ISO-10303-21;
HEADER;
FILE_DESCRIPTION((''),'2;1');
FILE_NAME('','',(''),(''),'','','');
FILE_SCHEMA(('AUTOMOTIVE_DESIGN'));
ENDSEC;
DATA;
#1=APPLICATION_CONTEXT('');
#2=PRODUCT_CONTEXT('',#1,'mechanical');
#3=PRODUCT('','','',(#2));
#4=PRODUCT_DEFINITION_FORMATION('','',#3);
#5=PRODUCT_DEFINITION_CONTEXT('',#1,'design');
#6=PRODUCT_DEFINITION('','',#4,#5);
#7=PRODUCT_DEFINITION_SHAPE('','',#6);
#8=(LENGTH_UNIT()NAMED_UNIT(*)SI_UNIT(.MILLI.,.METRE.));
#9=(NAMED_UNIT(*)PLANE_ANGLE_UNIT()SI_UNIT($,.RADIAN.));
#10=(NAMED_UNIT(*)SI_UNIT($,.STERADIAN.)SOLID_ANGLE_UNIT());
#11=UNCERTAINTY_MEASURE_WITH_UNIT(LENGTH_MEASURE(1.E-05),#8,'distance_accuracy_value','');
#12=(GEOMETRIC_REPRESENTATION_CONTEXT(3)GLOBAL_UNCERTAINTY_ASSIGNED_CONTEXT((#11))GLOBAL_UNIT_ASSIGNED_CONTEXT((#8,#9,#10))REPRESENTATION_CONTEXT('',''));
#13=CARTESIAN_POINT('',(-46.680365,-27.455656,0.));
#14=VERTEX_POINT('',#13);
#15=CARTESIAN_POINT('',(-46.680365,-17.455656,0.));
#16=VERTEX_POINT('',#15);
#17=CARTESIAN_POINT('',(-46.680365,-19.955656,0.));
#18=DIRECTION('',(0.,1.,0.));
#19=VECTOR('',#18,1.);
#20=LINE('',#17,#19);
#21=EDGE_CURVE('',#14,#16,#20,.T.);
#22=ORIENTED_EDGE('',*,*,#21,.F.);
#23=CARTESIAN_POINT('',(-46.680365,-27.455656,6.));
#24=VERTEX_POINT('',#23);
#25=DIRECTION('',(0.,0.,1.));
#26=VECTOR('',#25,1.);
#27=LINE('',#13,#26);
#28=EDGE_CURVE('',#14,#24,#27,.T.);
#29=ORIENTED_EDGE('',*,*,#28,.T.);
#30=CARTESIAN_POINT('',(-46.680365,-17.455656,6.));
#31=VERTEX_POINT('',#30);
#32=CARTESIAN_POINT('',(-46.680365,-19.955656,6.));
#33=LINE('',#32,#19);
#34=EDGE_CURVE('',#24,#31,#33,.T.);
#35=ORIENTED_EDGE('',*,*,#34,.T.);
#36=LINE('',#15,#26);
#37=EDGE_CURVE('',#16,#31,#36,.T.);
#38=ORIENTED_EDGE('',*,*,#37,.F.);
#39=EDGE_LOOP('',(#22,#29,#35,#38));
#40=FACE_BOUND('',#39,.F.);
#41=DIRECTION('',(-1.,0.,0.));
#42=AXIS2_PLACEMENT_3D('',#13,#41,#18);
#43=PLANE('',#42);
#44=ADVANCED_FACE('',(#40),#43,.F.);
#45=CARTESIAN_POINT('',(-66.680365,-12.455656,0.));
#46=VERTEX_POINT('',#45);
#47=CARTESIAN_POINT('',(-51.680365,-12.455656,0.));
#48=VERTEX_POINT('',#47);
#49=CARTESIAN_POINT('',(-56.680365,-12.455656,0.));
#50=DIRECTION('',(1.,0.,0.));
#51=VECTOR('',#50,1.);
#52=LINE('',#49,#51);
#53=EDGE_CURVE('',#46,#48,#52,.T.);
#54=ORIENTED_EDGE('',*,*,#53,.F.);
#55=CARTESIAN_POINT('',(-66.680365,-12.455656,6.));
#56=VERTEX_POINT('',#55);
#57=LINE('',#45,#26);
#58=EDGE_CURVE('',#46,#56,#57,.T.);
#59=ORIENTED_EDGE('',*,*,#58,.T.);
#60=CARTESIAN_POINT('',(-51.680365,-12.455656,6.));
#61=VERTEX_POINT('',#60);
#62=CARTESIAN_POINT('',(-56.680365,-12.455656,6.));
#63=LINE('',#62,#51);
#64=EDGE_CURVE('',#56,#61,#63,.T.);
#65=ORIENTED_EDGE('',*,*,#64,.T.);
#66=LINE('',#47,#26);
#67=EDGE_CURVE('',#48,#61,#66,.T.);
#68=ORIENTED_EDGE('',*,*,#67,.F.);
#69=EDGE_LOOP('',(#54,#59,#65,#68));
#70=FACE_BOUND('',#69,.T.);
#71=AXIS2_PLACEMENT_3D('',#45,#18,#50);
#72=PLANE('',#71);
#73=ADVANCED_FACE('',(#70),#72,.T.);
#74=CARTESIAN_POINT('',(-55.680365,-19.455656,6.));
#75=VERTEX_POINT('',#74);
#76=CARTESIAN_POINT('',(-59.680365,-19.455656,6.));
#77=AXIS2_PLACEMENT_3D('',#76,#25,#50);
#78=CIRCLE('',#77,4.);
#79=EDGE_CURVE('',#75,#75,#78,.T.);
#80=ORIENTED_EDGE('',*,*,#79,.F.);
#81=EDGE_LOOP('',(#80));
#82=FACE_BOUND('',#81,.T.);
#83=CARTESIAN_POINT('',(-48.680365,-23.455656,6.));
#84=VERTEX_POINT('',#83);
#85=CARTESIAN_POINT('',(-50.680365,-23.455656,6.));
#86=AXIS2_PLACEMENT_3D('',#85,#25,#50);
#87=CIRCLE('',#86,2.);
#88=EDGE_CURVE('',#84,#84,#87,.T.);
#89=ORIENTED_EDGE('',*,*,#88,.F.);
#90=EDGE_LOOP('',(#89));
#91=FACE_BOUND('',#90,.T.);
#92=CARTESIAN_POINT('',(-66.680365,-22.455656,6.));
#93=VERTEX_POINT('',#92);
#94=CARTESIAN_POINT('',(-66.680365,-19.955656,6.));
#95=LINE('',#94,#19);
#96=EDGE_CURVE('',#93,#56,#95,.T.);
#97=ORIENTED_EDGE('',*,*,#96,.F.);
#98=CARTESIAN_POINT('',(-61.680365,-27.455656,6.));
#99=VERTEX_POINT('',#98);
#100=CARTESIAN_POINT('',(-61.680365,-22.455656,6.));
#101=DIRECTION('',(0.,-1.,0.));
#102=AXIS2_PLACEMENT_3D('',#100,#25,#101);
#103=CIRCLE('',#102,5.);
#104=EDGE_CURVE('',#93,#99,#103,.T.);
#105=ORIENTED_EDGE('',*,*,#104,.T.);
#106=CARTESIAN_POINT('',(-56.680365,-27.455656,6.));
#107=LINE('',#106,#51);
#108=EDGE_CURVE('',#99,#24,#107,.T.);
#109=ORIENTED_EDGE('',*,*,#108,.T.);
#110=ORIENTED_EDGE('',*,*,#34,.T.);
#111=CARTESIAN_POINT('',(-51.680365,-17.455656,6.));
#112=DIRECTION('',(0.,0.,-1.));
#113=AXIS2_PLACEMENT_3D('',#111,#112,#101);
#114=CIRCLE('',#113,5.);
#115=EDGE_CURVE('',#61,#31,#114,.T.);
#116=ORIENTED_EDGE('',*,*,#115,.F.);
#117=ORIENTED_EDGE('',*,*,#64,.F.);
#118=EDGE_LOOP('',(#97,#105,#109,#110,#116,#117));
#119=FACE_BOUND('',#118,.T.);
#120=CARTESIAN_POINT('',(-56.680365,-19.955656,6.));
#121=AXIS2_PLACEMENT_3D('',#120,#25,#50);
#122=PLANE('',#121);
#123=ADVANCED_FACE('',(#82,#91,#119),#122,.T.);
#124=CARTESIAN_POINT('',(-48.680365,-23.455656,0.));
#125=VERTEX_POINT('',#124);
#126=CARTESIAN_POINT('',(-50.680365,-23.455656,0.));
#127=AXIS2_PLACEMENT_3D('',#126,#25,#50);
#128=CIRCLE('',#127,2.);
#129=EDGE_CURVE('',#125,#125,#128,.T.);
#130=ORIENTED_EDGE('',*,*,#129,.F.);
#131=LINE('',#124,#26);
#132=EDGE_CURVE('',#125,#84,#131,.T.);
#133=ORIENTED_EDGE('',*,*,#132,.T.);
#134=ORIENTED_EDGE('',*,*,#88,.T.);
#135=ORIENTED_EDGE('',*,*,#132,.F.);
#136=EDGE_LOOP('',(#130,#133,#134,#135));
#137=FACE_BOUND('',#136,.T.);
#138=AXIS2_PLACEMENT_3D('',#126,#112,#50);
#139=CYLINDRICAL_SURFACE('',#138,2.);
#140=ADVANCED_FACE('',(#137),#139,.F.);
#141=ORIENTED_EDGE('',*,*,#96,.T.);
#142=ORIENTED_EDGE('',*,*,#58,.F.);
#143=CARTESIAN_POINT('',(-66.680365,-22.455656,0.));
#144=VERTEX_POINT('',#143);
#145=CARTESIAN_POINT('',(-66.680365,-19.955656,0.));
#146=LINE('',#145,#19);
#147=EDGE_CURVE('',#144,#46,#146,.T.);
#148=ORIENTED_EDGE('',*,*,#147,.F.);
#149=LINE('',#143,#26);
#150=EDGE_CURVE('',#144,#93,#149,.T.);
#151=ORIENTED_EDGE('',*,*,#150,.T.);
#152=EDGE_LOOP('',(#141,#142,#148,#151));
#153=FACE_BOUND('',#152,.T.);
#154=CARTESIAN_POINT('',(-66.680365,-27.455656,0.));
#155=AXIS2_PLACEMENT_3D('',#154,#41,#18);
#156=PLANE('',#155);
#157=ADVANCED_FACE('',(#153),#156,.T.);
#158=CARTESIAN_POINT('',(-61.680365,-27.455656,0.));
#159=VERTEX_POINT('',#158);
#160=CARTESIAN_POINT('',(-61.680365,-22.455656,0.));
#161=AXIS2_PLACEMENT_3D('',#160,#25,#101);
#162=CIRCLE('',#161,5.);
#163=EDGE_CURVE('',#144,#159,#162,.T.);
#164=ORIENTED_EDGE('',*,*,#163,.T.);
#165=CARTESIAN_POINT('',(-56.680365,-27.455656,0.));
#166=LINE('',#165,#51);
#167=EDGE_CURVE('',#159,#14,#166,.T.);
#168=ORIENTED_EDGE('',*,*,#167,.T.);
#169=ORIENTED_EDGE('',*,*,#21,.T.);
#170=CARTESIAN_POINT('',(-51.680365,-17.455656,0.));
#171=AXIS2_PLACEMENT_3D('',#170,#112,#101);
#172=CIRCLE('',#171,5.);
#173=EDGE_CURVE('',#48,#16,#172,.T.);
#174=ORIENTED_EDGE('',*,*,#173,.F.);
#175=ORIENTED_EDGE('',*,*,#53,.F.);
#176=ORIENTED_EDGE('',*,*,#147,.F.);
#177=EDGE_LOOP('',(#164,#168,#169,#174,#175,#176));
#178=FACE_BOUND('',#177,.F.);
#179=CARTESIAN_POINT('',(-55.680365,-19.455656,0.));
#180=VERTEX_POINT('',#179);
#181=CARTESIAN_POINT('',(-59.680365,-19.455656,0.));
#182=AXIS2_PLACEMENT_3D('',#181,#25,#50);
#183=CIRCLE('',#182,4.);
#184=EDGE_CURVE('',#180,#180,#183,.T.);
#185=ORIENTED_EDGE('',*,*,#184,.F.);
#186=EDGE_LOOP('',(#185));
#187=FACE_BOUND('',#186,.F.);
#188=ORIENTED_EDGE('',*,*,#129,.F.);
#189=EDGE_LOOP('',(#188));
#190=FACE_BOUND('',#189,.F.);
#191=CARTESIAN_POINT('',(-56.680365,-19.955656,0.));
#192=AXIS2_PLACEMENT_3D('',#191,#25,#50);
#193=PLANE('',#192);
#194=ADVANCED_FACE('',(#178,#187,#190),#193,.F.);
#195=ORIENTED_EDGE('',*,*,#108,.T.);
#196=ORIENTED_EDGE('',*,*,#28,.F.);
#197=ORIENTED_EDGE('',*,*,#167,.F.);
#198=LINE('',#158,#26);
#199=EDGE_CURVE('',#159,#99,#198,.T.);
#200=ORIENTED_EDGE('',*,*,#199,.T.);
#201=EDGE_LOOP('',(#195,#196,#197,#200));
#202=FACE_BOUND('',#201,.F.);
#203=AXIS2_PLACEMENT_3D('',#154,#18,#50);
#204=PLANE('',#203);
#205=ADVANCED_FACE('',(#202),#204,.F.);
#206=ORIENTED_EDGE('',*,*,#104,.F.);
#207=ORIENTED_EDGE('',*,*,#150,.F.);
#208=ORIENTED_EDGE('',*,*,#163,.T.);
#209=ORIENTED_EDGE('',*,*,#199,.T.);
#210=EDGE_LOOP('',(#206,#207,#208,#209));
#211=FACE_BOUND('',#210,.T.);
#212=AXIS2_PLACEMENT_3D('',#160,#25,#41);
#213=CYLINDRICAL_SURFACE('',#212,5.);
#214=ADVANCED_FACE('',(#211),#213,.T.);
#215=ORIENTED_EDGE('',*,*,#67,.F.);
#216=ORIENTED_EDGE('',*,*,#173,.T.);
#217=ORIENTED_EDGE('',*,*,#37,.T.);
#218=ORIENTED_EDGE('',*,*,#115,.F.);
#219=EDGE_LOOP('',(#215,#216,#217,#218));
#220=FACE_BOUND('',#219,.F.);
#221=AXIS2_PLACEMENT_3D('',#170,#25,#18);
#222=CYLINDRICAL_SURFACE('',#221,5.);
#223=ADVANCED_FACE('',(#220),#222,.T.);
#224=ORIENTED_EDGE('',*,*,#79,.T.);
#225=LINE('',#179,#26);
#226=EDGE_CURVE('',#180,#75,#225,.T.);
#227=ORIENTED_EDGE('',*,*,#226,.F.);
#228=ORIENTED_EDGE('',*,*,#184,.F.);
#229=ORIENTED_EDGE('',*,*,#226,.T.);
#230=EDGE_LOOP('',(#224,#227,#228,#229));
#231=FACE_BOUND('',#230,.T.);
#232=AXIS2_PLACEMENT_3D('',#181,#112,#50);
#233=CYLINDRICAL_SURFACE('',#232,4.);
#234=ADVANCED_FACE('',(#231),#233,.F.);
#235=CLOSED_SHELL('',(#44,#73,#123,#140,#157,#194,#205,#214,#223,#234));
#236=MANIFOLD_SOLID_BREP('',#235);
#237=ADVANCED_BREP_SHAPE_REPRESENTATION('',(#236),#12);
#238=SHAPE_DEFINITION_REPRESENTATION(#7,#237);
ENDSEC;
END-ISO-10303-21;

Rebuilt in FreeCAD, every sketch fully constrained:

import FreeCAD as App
import Part
import Sketcher


def edges_at(feature, points):
    """Names of the edges that pass closest to the given points."""
    edges = feature.Shape.Edges
    near = lambda p: min(range(len(edges)), key=lambda i: edges[i].distToShape(Part.Vertex(*p))[0])
    return sorted({f"Edge{near(p) + 1}" for p in points})


def add_polygon(sketch, points):
    """Adds a closed chain of lines whose ends are joined by coincident constraints."""
    first, n = sketch.GeometryCount, len(points)
    for a, b in zip(points, points[1:] + points[:1]):
        sketch.addGeometry(Part.LineSegment(App.Vector(*a, 0), App.Vector(*b, 0)), False)
    for i in range(n):
        sketch.addConstraint(Sketcher.Constraint("Coincident", first + i, 2, first + (i + 1) % n, 1))

doc = App.newDocument("Part")
params = doc.addObject("Spreadsheet::Sheet", "Params")
for row, (alias, value) in enumerate([
    ("sketch1_diameter", "4 mm"),
    ("sketch1_diameter2", "8 mm"),
    ("sketch1_width", "20 mm"),
    ("sketch1_height", "15 mm"),
    ("pad1_length", "6 mm"),
    ("fillet_radius", "5 mm"),
], start=1):
    params.set(f"A{row}", alias)
    params.set(f"B{row}", "=" + value)
    params.setAlias(f"B{row}", alias)

body = doc.addObject("PartDesign::Body", "Body")

# Sketch on XY plane
sketch1 = body.newObject("Sketcher::SketchObject", "Sketch")
sketch1.AttachmentSupport = (doc.getObject("XY_Plane"), [""])
sketch1.MapMode = "FlatFace"
add_polygon(sketch1, [(-66.7, -12.5), (-66.7, -27.5), (-46.7, -27.5), (-46.7, -12.5)])  # lines 0-3
sketch1.addGeometry(Part.Circle(App.Vector(-50.7, -23.5, 0), App.Vector(0, 0, 1), 2), False)  # 4
sketch1.addGeometry(Part.Circle(App.Vector(-59.7, -19.5, 0), App.Vector(0, 0, 1), 4), False)  # 5
sketch1.addConstraint([
    Sketcher.Constraint("Vertical", 0),
    Sketcher.Constraint("Horizontal", 1),
    Sketcher.Constraint("Vertical", 2),
    Sketcher.Constraint("Horizontal", 3),
    Sketcher.Constraint("Diameter", 4, 4.0),
    Sketcher.Constraint("Diameter", 5, 8.0),
    Sketcher.Constraint("DistanceX", 1, 1, 1, 2, 20.0),
    Sketcher.Constraint("DistanceY", 0, 2, 0, 1, 15.0),
    Sketcher.Constraint("DistanceX", 5, 3, 4, 3, 9.0),
    Sketcher.Constraint("DistanceY", 4, 3, 5, 3, 4.0),
    Sketcher.Constraint("DistanceX", 0, 2, 5, 3, 7.0),
    Sketcher.Constraint("DistanceY", 0, 2, 5, 3, 8.0),
    Sketcher.Constraint("DistanceX", 4, 3, -1, 1, 50.680365),
    Sketcher.Constraint("DistanceY", 4, 3, -1, 1, 23.455656),
])
sketch1.setExpression("Constraints[8]", "Params.sketch1_diameter")
sketch1.setExpression("Constraints[9]", "Params.sketch1_diameter2")
sketch1.setExpression("Constraints[10]", "Params.sketch1_width")
sketch1.setExpression("Constraints[11]", "Params.sketch1_height")
pad1 = body.newObject("PartDesign::Pad", "Pad")
pad1.Profile = sketch1
pad1.setExpression("Length", "Params.pad1_length")
doc.recompute()

fillet = body.newObject("PartDesign::Fillet", "Fillet")
fillet.Base = (pad1, edges_at(pad1, [(-46.68, -12.456, 3), (-66.68, -27.456, 3)]))
fillet.setExpression("Radius", "Params.fillet_radius")

doc.recompute()
